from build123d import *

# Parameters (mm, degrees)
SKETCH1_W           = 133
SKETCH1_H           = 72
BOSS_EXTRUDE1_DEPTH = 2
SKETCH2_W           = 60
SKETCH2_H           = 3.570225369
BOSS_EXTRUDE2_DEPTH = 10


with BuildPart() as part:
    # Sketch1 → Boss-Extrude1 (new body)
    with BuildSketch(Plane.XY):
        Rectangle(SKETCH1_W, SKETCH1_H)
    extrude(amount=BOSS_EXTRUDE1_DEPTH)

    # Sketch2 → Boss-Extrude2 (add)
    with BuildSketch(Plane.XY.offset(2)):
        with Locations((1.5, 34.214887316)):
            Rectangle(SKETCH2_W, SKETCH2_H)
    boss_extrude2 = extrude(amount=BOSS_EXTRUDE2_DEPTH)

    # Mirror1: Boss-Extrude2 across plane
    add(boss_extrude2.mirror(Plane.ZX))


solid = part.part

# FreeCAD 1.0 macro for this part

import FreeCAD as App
import Part
import Sketcher


def add_polygon(sketch, points):
    """Adds a closed chain of lines whose ends are joined by coincident constraints."""
    first, n = sketch.GeometryCount, len(points)
    for a, b in zip(points, points[1:] + points[:1]):
        sketch.addGeometry(Part.LineSegment(App.Vector(*a, 0), App.Vector(*b, 0)), False)
    for i in range(n):
        sketch.addConstraint(Sketcher.Constraint("Coincident", first + i, 2, first + (i + 1) % n, 1))

doc = App.newDocument("Part")
params = doc.addObject("Spreadsheet::Sheet", "Params")
for row, (alias, value) in enumerate([
    ("sketch1_width", "133 mm"),
    ("sketch1_height", "72 mm"),
    ("pad1_length", "2 mm"),
    ("sketch2_width", "60 mm"),
    ("pad2_length", "10 mm"),
], start=1):
    params.set(f"A{row}", alias)
    params.set(f"B{row}", "=" + value)
    params.setAlias(f"B{row}", alias)

body = doc.addObject("PartDesign::Body", "Body")

# Sketch on XY plane
sketch1 = body.newObject("Sketcher::SketchObject", "Sketch")
sketch1.AttachmentSupport = (doc.getObject("XY_Plane"), [""])
sketch1.MapMode = "FlatFace"
add_polygon(sketch1, [(-66, 36), (-66, -36), (66, -36), (66, 36)])  # lines 0-3
sketch1.addConstraint([
    Sketcher.Constraint("Vertical", 0),
    Sketcher.Constraint("Horizontal", 1),
    Sketcher.Constraint("Vertical", 2),
    Sketcher.Constraint("Horizontal", 3),
    Sketcher.Constraint("Symmetric", 0, 2, 2, 2, -1, 1),
    Sketcher.Constraint("DistanceX", 1, 1, 1, 2, 133.0),
    Sketcher.Constraint("DistanceY", 0, 2, 0, 1, 72.0),
])
sketch1.setExpression("Constraints[9]", "Params.sketch1_width")
sketch1.setExpression("Constraints[10]", "Params.sketch1_height")
pad1 = body.newObject("PartDesign::Pad", "Pad")
pad1.Profile = sketch1
pad1.setExpression("Length", "Params.pad1_length")

# Sketch on XY plane
sketch2 = body.newObject("Sketcher::SketchObject", "Sketch001")
sketch2.AttachmentSupport = (doc.getObject("XY_Plane"), [""])
sketch2.MapMode = "FlatFace"
sketch2.AttachmentOffset = App.Placement(App.Vector(0, 0, 2), App.Rotation())
add_polygon(sketch2, [(-28.5, 36), (-28.5, 32.4), (31.5, 32.4), (31.5, 36)])  # lines 0-3
sketch2.addConstraint([
    Sketcher.Constraint("Vertical", 0),
    Sketcher.Constraint("Horizontal", 1),
    Sketcher.Constraint("Vertical", 2),
    Sketcher.Constraint("Horizontal", 3),
    Sketcher.Constraint("DistanceX", 1, 1, 1, 2, 60.0),
    Sketcher.Constraint("DistanceY", -1, 1, 2, 2, 36.0),
    Sketcher.Constraint("DistanceX", 0, 2, -1, 1, 28.5),
    Sketcher.Constraint("DistanceY", 0, 2, 0, 1, 3.570225),
])
sketch2.setExpression("Constraints[8]", "Params.sketch2_width")
pad2 = body.newObject("PartDesign::Pad", "Pad001")
pad2.Profile = sketch2
pad2.setExpression("Length", "Params.pad2_length")
doc.recompute()

mirrored = body.newObject("PartDesign::Mirrored", "Mirrored")
mirrored.Originals = [pad2]
mirrored.MirrorPlane = (doc.getObject("XZ_Plane"), [""])
body.Tip = mirrored

doc.recompute()
